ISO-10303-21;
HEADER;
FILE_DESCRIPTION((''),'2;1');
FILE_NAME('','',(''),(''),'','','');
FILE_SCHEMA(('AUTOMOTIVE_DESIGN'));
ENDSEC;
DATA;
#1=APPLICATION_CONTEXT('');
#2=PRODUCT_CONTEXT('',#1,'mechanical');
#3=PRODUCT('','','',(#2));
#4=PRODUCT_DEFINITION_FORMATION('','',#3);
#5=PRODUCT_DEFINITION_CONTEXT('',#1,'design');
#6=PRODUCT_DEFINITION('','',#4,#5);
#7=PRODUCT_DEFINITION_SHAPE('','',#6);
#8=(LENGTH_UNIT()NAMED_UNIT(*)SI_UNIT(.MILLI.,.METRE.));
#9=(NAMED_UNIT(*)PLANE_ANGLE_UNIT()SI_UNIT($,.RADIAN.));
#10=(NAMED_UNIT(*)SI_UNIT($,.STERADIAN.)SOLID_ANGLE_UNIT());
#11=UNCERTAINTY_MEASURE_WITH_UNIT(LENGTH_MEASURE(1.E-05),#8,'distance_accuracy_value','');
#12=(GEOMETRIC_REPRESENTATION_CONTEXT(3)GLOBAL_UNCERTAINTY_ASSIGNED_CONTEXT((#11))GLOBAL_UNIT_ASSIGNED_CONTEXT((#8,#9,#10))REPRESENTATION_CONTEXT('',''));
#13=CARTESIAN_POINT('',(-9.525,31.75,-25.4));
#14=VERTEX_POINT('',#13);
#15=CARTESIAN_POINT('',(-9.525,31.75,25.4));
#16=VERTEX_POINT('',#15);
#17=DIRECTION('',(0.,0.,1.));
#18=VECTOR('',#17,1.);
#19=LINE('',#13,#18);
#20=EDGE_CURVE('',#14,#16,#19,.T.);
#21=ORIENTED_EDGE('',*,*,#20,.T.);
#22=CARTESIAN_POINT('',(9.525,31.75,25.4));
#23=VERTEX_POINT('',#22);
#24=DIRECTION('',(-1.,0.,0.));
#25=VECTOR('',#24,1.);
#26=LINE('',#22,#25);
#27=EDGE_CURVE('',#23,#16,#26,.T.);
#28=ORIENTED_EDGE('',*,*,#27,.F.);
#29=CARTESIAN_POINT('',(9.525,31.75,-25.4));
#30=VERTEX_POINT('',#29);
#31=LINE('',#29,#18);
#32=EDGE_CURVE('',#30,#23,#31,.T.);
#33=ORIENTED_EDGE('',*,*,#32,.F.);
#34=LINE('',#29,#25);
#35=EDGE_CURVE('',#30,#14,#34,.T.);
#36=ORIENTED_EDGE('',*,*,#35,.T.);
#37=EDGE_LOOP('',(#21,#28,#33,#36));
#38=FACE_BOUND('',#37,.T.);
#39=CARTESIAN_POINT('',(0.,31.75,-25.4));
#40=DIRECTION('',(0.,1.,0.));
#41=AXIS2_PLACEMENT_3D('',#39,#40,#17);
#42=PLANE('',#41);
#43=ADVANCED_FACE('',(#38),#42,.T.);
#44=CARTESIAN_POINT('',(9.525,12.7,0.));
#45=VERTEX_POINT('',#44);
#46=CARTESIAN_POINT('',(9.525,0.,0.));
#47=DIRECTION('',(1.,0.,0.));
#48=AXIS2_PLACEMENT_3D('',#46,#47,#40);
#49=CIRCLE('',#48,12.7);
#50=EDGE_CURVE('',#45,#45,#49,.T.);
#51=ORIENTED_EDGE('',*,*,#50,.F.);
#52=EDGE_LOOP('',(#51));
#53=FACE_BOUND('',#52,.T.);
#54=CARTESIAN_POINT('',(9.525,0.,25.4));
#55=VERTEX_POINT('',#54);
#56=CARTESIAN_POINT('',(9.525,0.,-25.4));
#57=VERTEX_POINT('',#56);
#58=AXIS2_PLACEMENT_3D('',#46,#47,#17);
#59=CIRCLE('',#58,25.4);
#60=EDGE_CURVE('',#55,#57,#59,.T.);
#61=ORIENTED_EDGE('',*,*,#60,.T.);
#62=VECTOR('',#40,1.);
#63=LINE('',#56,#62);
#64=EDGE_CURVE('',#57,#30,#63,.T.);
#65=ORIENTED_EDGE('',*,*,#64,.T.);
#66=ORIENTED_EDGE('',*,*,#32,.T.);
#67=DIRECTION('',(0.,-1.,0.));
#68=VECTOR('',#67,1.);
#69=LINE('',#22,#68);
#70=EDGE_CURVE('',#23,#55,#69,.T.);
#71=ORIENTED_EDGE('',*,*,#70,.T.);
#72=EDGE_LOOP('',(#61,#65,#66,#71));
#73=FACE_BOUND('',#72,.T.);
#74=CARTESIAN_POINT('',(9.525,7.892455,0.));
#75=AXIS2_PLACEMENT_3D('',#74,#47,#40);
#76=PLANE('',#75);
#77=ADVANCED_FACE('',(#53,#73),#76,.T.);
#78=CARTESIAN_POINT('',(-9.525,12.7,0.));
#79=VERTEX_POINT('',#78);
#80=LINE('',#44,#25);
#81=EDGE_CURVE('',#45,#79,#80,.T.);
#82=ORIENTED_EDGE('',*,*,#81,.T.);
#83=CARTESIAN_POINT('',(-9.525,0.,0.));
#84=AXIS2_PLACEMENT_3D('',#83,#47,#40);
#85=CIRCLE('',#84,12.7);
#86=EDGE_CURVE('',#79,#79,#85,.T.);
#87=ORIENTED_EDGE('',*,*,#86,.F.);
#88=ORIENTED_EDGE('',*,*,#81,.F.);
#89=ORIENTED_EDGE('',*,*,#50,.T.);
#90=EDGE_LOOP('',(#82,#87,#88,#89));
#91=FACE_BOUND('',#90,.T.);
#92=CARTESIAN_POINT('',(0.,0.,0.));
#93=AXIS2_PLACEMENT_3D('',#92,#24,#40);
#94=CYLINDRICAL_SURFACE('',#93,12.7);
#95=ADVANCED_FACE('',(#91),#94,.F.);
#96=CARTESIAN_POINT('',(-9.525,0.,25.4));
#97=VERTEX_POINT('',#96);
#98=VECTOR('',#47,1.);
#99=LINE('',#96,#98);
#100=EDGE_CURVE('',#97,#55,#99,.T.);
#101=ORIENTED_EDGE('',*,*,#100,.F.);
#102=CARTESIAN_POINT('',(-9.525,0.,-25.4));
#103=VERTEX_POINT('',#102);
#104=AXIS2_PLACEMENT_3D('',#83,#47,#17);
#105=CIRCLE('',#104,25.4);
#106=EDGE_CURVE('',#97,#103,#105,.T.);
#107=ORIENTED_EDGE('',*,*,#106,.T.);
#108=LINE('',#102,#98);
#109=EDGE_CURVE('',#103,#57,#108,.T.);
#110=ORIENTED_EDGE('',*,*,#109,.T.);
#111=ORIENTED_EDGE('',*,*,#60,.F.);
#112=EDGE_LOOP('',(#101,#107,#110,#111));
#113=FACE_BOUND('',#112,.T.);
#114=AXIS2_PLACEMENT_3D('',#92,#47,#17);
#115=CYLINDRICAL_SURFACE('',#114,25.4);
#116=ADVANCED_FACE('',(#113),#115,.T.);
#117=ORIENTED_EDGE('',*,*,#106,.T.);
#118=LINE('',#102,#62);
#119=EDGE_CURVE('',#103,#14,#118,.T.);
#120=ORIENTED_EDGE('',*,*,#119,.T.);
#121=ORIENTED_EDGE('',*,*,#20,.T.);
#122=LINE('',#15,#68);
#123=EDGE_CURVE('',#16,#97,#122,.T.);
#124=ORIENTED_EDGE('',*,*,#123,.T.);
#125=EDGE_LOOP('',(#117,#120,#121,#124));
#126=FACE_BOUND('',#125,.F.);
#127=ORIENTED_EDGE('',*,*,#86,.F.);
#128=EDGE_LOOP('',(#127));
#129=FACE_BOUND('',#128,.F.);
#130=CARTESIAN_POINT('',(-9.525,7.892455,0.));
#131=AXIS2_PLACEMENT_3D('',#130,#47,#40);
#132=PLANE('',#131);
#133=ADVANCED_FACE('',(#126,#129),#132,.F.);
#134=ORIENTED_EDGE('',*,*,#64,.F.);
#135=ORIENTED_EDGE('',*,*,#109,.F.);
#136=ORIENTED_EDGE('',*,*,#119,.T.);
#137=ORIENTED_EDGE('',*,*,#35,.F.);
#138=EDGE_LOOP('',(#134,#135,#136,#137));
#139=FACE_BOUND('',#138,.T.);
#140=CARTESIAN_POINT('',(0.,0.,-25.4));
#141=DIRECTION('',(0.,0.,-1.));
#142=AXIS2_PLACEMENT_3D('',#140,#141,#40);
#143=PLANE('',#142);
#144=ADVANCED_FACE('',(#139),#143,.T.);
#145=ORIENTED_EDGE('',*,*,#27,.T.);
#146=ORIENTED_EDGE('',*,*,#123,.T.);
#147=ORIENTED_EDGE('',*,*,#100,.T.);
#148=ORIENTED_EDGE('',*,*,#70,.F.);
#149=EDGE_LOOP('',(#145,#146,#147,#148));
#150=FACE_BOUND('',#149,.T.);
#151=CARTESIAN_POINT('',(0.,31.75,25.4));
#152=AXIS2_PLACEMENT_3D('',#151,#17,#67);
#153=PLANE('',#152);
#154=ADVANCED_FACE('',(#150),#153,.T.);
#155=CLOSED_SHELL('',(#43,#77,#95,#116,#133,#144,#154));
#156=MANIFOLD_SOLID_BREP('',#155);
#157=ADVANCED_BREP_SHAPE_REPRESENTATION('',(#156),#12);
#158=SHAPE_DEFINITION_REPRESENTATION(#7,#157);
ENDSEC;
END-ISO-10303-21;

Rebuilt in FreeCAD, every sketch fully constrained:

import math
import FreeCAD as App
import Part
import Sketcher

V = App.Vector
Q = App.Units.Quantity

doc = App.newDocument("Part")
body = doc.addObject("PartDesign::Body", "Body")

sketch1 = body.newObject("Sketcher::SketchObject", "Sketch")
sketch1.AttachmentSupport = (doc.getObject("YZ_Plane"), [""])
sketch1.MapMode = "FlatFace"
sketch1.addGeometry([
    Part.LineSegment(V(32, 25, 0), V(0, 25, 0)),
    Part.ArcOfCircle(Part.Circle(V(0, 0, 0), V(0, 0, 1), 25), math.radians(90), math.radians(270)),
    Part.LineSegment(V(0, -25, 0), V(32, -25, 0)),
    Part.LineSegment(V(32, -25, 0), V(32, 25, 0)),
    Part.Circle(V(0, 0, 0), V(0, 0, 1), 13),
], False)
sketch1.addConstraint([
    Sketcher.Constraint("Tangent", 0, 2, 1, 1),
    Sketcher.Constraint("Tangent", 1, 2, 2, 1),
    Sketcher.Constraint("Coincident", 2, 2, 3, 1),
    Sketcher.Constraint("Coincident", 3, 2, 0, 1),
    Sketcher.Constraint("Horizontal", 0),
    Sketcher.Constraint("Horizontal", 2),
    Sketcher.Constraint("Vertical", 3),
    Sketcher.Constraint("Coincident", 1, 3, -1, 1),
    Sketcher.Constraint("Coincident", 4, 3, -1, 1),
    Sketcher.Constraint("Diameter", 4, Q("1 in")),
    Sketcher.Constraint("Radius", 1, Q("1 in")),
    Sketcher.Constraint("DistanceX", 0, 2, 0, 1, Q("1.25 in")),
])
pad1 = body.newObject("PartDesign::Pad", "Pad")
pad1.Profile = sketch1
pad1.Length = Q("0.75 in")
pad1.Midplane = True

doc.recompute()
